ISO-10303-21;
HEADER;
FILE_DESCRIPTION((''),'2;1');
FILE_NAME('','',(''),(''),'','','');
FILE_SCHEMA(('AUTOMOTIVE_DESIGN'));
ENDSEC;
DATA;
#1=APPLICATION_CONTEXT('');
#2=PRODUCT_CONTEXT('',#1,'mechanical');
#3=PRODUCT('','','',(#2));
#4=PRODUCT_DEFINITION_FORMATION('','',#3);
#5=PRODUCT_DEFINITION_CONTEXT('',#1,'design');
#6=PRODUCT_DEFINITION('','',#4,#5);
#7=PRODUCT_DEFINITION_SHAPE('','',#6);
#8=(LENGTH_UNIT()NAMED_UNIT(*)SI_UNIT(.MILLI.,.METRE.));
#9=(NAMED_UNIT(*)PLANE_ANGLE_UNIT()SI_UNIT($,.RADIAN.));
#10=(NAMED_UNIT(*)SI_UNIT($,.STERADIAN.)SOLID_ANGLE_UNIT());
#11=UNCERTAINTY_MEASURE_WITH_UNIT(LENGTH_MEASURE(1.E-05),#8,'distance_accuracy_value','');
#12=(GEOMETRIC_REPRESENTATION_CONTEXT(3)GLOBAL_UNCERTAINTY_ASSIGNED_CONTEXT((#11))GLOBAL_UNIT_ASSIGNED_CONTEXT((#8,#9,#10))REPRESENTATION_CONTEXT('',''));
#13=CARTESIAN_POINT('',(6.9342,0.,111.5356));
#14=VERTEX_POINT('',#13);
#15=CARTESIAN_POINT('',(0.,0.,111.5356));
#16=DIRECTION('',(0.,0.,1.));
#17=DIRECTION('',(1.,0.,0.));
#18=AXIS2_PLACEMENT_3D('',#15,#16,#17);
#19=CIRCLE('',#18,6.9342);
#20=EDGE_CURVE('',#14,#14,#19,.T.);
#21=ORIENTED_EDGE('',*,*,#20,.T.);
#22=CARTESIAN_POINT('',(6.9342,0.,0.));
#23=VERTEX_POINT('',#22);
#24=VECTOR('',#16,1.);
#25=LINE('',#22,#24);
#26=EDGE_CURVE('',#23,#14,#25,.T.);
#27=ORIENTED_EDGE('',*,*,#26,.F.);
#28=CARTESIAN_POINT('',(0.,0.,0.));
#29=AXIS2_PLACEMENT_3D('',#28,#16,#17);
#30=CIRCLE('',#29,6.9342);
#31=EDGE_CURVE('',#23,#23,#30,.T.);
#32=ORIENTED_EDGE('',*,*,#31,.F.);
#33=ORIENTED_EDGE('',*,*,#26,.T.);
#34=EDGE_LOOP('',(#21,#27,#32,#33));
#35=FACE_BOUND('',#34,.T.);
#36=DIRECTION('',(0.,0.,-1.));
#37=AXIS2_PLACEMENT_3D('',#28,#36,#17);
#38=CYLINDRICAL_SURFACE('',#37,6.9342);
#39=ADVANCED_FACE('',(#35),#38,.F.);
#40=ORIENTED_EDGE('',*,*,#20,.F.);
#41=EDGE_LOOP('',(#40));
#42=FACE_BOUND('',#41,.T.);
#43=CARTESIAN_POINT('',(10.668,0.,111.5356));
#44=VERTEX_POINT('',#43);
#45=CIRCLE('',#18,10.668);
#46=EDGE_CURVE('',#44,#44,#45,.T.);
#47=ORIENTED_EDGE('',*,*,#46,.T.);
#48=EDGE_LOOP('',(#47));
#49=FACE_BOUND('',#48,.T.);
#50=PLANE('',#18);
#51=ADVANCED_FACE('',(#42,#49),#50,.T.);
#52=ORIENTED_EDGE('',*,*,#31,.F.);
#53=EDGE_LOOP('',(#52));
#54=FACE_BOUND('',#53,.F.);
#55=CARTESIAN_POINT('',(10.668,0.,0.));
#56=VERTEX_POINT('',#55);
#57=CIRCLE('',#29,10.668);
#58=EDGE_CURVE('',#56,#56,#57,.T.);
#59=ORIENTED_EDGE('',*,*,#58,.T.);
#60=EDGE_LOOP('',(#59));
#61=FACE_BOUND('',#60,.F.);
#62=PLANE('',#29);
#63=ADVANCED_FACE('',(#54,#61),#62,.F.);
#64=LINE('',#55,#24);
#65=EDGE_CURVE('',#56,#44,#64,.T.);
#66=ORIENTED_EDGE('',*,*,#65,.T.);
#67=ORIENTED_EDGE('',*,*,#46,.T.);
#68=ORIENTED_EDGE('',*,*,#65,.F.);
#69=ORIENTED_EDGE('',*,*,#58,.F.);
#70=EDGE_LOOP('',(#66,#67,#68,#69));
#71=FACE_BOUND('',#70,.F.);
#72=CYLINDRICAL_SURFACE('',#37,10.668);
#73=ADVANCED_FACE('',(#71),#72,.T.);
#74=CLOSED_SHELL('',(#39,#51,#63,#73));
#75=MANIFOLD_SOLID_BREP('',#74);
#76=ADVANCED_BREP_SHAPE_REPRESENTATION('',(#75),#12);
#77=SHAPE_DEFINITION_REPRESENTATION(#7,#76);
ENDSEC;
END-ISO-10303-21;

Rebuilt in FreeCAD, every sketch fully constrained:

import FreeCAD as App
import Part
import Sketcher

V = App.Vector
Q = App.Units.Quantity

doc = App.newDocument("Part")
body = doc.addObject("PartDesign::Body", "Body")

# Sketch on XY plane
sketch1 = body.newObject("Sketcher::SketchObject", "Sketch")
sketch1.AttachmentSupport = (doc.getObject("XY_Plane"), [""])
sketch1.MapMode = "FlatFace"
sketch1.addGeometry([
    Part.Circle(V(0, 0, 0), V(0, 0, 1), 11),
    Part.Circle(V(0, 0, 0), V(0, 0, 1), 7),
], False)
sketch1.addConstraint([
    Sketcher.Constraint("Coincident", 0, 3, -1, 1),
    Sketcher.Constraint("Coincident", 1, 3, -1, 1),
    Sketcher.Constraint("Diameter", 0, Q("0.84 in")),
    Sketcher.Constraint("Diameter", 1, Q("0.546 in")),
])
pad1 = body.newObject("PartDesign::Pad", "Pad")
pad1.Profile = sketch1
pad1.Length = 111.5356

doc.recompute()
